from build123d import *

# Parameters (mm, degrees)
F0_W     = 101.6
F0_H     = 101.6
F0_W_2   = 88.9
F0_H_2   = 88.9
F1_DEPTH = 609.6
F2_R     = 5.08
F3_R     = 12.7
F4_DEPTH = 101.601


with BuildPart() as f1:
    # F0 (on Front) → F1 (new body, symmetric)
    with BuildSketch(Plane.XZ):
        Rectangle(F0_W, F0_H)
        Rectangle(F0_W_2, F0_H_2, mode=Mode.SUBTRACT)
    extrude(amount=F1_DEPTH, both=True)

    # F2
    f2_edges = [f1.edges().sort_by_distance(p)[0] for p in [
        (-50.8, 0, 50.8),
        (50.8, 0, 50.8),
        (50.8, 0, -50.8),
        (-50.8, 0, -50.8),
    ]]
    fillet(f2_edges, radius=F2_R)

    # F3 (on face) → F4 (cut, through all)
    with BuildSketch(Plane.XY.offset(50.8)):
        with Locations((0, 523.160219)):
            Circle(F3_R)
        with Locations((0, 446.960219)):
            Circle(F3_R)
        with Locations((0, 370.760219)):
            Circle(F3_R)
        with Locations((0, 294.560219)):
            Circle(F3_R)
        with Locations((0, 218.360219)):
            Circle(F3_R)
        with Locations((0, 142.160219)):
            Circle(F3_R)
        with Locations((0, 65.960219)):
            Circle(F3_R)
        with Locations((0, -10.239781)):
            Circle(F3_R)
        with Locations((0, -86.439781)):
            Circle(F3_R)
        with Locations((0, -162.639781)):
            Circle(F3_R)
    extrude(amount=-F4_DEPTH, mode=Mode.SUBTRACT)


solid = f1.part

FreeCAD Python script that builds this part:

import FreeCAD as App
import Part
import Sketcher
from FreeCAD import Vector
Q = App.Units.Quantity


def edges_at(feature, points):
    """Names of the edges that pass closest to the given points."""
    edges = feature.Shape.Edges
    near = lambda p: min(range(len(edges)), key=lambda i: edges[i].distToShape(Part.Vertex(*p))[0])
    return sorted({f"Edge{near(p) + 1}" for p in points})

doc = App.newDocument("Part")
body = doc.addObject("PartDesign::Body", "Body")

# Sketch on XZ plane
sketch1 = doc.addObject("Sketcher::SketchObject", "Sketch")
body.addObject(sketch1)
sketch1.AttachmentSupport = (doc.XZ_Plane, [""])
sketch1.MapMode = "FlatFace"
sketch1.addGeometry(Part.LineSegment(Vector(-51, 51, 0), Vector(-51, -51, 0)), False)
sketch1.addGeometry(Part.LineSegment(Vector(-51, -51, 0), Vector(51, -51, 0)), False)
sketch1.addGeometry(Part.LineSegment(Vector(51, -51, 0), Vector(51, 51, 0)), False)
sketch1.addGeometry(Part.LineSegment(Vector(51, 51, 0), Vector(-51, 51, 0)), False)
sketch1.addGeometry(Part.LineSegment(Vector(44, -44, 0), Vector(-44, -44, 0)), False)
sketch1.addGeometry(Part.LineSegment(Vector(-44, -44, 0), Vector(-44, 44, 0)), False)
sketch1.addGeometry(Part.LineSegment(Vector(-44, 44, 0), Vector(44, 44, 0)), False)
sketch1.addGeometry(Part.LineSegment(Vector(44, 44, 0), Vector(44, -44, 0)), False)
sketch1.addConstraint(Sketcher.Constraint("Coincident", 0, 2, 1, 1))
sketch1.addConstraint(Sketcher.Constraint("Coincident", 1, 2, 2, 1))
sketch1.addConstraint(Sketcher.Constraint("Coincident", 2, 2, 3, 1))
sketch1.addConstraint(Sketcher.Constraint("Coincident", 3, 2, 0, 1))
sketch1.addConstraint(Sketcher.Constraint("Coincident", 4, 2, 5, 1))
sketch1.addConstraint(Sketcher.Constraint("Coincident", 5, 2, 6, 1))
sketch1.addConstraint(Sketcher.Constraint("Coincident", 6, 2, 7, 1))
sketch1.addConstraint(Sketcher.Constraint("Coincident", 7, 2, 4, 1))
sketch1.addConstraint(Sketcher.Constraint("Vertical", 0))
sketch1.addConstraint(Sketcher.Constraint("Horizontal", 1))
sketch1.addConstraint(Sketcher.Constraint("Vertical", 2))
sketch1.addConstraint(Sketcher.Constraint("Horizontal", 3))
sketch1.addConstraint(Sketcher.Constraint("Horizontal", 4))
sketch1.addConstraint(Sketcher.Constraint("Vertical", 5))
sketch1.addConstraint(Sketcher.Constraint("Horizontal", 6))
sketch1.addConstraint(Sketcher.Constraint("Vertical", 7))
sketch1.addConstraint(Sketcher.Constraint("Symmetric", 0, 2, 2, 2, -1, 1))
sketch1.addConstraint(Sketcher.Constraint("Symmetric", 4, 2, 6, 2, -1, 1))
sketch1.addConstraint(Sketcher.Constraint("Equal", 3, 0))
sketch1.addConstraint(Sketcher.Constraint("Equal", 6, 5))
sketch1.addConstraint(Sketcher.Constraint("DistanceX", 1, 1, 1, 2, Q("4 in")))
sketch1.addConstraint(Sketcher.Constraint("DistanceX", 4, 2, 4, 1, Q("3.5 in")))
pad1 = doc.addObject("PartDesign::Pad", "Pad")
body.addObject(pad1)
pad1.Profile = sketch1
pad1.Length = Q("48 in")
pad1.Midplane = True
doc.recompute()

fillet = doc.addObject("PartDesign::Fillet", "Fillet")
body.addObject(fillet)
fillet.Base = (pad1, edges_at(pad1, [
    (-50.8, 0, 50.8),
    (50.8, 0, 50.8),
    (50.8, 0, -50.8),
    (-50.8, 0, -50.8),
]))
fillet.Radius = Q("0.2 in")

# Sketch on XY plane
sketch2 = doc.addObject("Sketcher::SketchObject", "Sketch001")
body.addObject(sketch2)
sketch2.AttachmentSupport = (doc.XY_Plane, [""])
sketch2.MapMode = "FlatFace"
sketch2.AttachmentOffset = App.Placement(Vector(0, 0, 2 * 25.4), App.Rotation())
sketch2.addGeometry(Part.Circle(Vector(0, 523, 0), Vector(0, 0, 1), 13), False)
sketch2.addGeometry(Part.Circle(Vector(0, 447, 0), Vector(0, 0, 1), 13), False)
sketch2.addGeometry(Part.Circle(Vector(0, 371, 0), Vector(0, 0, 1), 13), False)
sketch2.addGeometry(Part.Circle(Vector(0, 295, 0), Vector(0, 0, 1), 13), False)
sketch2.addGeometry(Part.Circle(Vector(0, 218, 0), Vector(0, 0, 1), 13), False)
sketch2.addGeometry(Part.Circle(Vector(0, 142, 0), Vector(0, 0, 1), 13), False)
sketch2.addGeometry(Part.Circle(Vector(0, 66, 0), Vector(0, 0, 1), 13), False)
sketch2.addGeometry(Part.Circle(Vector(0, -10, 0), Vector(0, 0, 1), 13), False)
sketch2.addGeometry(Part.Circle(Vector(0, -86, 0), Vector(0, 0, 1), 13), False)
sketch2.addGeometry(Part.Circle(Vector(0, -163, 0), Vector(0, 0, 1), 13), False)
sketch2.addConstraint(Sketcher.Constraint("Equal", 0, 1))
sketch2.addConstraint(Sketcher.Constraint("Equal", 1, 2))
sketch2.addConstraint(Sketcher.Constraint("Equal", 2, 3))
sketch2.addConstraint(Sketcher.Constraint("Equal", 3, 4))
sketch2.addConstraint(Sketcher.Constraint("Equal", 4, 5))
sketch2.addConstraint(Sketcher.Constraint("Equal", 5, 6))
sketch2.addConstraint(Sketcher.Constraint("Equal", 6, 7))
sketch2.addConstraint(Sketcher.Constraint("Equal", 7, 8))
sketch2.addConstraint(Sketcher.Constraint("Equal", 8, 9))
sketch2.addConstraint(Sketcher.Constraint("PointOnObject", 0, 3, -2))
sketch2.addConstraint(Sketcher.Constraint("PointOnObject", 1, 3, -2))
sketch2.addConstraint(Sketcher.Constraint("PointOnObject", 2, 3, -2))
sketch2.addConstraint(Sketcher.Constraint("PointOnObject", 3, 3, -2))
sketch2.addConstraint(Sketcher.Constraint("PointOnObject", 4, 3, -2))
sketch2.addConstraint(Sketcher.Constraint("PointOnObject", 5, 3, -2))
sketch2.addConstraint(Sketcher.Constraint("PointOnObject", 6, 3, -2))
sketch2.addConstraint(Sketcher.Constraint("PointOnObject", 7, 3, -2))
sketch2.addConstraint(Sketcher.Constraint("PointOnObject", 8, 3, -2))
sketch2.addConstraint(Sketcher.Constraint("PointOnObject", 9, 3, -2))
sketch2.addConstraint(Sketcher.Constraint("Diameter", 0, Q("1 in")))
sketch2.addConstraint(Sketcher.Constraint("DistanceY", 1, 3, 0, 3, Q("3 in")))
sketch2.addConstraint(Sketcher.Constraint("DistanceY", 2, 3, 1, 3, Q("3 in")))
sketch2.addConstraint(Sketcher.Constraint("DistanceY", 3, 3, 2, 3, Q("3 in")))
sketch2.addConstraint(Sketcher.Constraint("DistanceY", 4, 3, 3, 3, Q("3 in")))
sketch2.addConstraint(Sketcher.Constraint("DistanceY", 5, 3, 4, 3, Q("3 in")))
sketch2.addConstraint(Sketcher.Constraint("DistanceY", 6, 3, 5, 3, Q("3 in")))
sketch2.addConstraint(Sketcher.Constraint("DistanceY", 7, 3, 6, 3, Q("3 in")))
sketch2.addConstraint(Sketcher.Constraint("DistanceY", 8, 3, 7, 3, Q("3 in")))
sketch2.addConstraint(Sketcher.Constraint("DistanceY", 9, 3, 8, 3, Q("3 in")))
sketch2.addConstraint(Sketcher.Constraint("DistanceY", -1, 1, 0, 3, Q("523.160219 mm")))
pocket1 = doc.addObject("PartDesign::Pocket", "Pocket")
body.addObject(pocket1)
pocket1.Profile = sketch2
pocket1.Type = "ThroughAll"

doc.recompute()
